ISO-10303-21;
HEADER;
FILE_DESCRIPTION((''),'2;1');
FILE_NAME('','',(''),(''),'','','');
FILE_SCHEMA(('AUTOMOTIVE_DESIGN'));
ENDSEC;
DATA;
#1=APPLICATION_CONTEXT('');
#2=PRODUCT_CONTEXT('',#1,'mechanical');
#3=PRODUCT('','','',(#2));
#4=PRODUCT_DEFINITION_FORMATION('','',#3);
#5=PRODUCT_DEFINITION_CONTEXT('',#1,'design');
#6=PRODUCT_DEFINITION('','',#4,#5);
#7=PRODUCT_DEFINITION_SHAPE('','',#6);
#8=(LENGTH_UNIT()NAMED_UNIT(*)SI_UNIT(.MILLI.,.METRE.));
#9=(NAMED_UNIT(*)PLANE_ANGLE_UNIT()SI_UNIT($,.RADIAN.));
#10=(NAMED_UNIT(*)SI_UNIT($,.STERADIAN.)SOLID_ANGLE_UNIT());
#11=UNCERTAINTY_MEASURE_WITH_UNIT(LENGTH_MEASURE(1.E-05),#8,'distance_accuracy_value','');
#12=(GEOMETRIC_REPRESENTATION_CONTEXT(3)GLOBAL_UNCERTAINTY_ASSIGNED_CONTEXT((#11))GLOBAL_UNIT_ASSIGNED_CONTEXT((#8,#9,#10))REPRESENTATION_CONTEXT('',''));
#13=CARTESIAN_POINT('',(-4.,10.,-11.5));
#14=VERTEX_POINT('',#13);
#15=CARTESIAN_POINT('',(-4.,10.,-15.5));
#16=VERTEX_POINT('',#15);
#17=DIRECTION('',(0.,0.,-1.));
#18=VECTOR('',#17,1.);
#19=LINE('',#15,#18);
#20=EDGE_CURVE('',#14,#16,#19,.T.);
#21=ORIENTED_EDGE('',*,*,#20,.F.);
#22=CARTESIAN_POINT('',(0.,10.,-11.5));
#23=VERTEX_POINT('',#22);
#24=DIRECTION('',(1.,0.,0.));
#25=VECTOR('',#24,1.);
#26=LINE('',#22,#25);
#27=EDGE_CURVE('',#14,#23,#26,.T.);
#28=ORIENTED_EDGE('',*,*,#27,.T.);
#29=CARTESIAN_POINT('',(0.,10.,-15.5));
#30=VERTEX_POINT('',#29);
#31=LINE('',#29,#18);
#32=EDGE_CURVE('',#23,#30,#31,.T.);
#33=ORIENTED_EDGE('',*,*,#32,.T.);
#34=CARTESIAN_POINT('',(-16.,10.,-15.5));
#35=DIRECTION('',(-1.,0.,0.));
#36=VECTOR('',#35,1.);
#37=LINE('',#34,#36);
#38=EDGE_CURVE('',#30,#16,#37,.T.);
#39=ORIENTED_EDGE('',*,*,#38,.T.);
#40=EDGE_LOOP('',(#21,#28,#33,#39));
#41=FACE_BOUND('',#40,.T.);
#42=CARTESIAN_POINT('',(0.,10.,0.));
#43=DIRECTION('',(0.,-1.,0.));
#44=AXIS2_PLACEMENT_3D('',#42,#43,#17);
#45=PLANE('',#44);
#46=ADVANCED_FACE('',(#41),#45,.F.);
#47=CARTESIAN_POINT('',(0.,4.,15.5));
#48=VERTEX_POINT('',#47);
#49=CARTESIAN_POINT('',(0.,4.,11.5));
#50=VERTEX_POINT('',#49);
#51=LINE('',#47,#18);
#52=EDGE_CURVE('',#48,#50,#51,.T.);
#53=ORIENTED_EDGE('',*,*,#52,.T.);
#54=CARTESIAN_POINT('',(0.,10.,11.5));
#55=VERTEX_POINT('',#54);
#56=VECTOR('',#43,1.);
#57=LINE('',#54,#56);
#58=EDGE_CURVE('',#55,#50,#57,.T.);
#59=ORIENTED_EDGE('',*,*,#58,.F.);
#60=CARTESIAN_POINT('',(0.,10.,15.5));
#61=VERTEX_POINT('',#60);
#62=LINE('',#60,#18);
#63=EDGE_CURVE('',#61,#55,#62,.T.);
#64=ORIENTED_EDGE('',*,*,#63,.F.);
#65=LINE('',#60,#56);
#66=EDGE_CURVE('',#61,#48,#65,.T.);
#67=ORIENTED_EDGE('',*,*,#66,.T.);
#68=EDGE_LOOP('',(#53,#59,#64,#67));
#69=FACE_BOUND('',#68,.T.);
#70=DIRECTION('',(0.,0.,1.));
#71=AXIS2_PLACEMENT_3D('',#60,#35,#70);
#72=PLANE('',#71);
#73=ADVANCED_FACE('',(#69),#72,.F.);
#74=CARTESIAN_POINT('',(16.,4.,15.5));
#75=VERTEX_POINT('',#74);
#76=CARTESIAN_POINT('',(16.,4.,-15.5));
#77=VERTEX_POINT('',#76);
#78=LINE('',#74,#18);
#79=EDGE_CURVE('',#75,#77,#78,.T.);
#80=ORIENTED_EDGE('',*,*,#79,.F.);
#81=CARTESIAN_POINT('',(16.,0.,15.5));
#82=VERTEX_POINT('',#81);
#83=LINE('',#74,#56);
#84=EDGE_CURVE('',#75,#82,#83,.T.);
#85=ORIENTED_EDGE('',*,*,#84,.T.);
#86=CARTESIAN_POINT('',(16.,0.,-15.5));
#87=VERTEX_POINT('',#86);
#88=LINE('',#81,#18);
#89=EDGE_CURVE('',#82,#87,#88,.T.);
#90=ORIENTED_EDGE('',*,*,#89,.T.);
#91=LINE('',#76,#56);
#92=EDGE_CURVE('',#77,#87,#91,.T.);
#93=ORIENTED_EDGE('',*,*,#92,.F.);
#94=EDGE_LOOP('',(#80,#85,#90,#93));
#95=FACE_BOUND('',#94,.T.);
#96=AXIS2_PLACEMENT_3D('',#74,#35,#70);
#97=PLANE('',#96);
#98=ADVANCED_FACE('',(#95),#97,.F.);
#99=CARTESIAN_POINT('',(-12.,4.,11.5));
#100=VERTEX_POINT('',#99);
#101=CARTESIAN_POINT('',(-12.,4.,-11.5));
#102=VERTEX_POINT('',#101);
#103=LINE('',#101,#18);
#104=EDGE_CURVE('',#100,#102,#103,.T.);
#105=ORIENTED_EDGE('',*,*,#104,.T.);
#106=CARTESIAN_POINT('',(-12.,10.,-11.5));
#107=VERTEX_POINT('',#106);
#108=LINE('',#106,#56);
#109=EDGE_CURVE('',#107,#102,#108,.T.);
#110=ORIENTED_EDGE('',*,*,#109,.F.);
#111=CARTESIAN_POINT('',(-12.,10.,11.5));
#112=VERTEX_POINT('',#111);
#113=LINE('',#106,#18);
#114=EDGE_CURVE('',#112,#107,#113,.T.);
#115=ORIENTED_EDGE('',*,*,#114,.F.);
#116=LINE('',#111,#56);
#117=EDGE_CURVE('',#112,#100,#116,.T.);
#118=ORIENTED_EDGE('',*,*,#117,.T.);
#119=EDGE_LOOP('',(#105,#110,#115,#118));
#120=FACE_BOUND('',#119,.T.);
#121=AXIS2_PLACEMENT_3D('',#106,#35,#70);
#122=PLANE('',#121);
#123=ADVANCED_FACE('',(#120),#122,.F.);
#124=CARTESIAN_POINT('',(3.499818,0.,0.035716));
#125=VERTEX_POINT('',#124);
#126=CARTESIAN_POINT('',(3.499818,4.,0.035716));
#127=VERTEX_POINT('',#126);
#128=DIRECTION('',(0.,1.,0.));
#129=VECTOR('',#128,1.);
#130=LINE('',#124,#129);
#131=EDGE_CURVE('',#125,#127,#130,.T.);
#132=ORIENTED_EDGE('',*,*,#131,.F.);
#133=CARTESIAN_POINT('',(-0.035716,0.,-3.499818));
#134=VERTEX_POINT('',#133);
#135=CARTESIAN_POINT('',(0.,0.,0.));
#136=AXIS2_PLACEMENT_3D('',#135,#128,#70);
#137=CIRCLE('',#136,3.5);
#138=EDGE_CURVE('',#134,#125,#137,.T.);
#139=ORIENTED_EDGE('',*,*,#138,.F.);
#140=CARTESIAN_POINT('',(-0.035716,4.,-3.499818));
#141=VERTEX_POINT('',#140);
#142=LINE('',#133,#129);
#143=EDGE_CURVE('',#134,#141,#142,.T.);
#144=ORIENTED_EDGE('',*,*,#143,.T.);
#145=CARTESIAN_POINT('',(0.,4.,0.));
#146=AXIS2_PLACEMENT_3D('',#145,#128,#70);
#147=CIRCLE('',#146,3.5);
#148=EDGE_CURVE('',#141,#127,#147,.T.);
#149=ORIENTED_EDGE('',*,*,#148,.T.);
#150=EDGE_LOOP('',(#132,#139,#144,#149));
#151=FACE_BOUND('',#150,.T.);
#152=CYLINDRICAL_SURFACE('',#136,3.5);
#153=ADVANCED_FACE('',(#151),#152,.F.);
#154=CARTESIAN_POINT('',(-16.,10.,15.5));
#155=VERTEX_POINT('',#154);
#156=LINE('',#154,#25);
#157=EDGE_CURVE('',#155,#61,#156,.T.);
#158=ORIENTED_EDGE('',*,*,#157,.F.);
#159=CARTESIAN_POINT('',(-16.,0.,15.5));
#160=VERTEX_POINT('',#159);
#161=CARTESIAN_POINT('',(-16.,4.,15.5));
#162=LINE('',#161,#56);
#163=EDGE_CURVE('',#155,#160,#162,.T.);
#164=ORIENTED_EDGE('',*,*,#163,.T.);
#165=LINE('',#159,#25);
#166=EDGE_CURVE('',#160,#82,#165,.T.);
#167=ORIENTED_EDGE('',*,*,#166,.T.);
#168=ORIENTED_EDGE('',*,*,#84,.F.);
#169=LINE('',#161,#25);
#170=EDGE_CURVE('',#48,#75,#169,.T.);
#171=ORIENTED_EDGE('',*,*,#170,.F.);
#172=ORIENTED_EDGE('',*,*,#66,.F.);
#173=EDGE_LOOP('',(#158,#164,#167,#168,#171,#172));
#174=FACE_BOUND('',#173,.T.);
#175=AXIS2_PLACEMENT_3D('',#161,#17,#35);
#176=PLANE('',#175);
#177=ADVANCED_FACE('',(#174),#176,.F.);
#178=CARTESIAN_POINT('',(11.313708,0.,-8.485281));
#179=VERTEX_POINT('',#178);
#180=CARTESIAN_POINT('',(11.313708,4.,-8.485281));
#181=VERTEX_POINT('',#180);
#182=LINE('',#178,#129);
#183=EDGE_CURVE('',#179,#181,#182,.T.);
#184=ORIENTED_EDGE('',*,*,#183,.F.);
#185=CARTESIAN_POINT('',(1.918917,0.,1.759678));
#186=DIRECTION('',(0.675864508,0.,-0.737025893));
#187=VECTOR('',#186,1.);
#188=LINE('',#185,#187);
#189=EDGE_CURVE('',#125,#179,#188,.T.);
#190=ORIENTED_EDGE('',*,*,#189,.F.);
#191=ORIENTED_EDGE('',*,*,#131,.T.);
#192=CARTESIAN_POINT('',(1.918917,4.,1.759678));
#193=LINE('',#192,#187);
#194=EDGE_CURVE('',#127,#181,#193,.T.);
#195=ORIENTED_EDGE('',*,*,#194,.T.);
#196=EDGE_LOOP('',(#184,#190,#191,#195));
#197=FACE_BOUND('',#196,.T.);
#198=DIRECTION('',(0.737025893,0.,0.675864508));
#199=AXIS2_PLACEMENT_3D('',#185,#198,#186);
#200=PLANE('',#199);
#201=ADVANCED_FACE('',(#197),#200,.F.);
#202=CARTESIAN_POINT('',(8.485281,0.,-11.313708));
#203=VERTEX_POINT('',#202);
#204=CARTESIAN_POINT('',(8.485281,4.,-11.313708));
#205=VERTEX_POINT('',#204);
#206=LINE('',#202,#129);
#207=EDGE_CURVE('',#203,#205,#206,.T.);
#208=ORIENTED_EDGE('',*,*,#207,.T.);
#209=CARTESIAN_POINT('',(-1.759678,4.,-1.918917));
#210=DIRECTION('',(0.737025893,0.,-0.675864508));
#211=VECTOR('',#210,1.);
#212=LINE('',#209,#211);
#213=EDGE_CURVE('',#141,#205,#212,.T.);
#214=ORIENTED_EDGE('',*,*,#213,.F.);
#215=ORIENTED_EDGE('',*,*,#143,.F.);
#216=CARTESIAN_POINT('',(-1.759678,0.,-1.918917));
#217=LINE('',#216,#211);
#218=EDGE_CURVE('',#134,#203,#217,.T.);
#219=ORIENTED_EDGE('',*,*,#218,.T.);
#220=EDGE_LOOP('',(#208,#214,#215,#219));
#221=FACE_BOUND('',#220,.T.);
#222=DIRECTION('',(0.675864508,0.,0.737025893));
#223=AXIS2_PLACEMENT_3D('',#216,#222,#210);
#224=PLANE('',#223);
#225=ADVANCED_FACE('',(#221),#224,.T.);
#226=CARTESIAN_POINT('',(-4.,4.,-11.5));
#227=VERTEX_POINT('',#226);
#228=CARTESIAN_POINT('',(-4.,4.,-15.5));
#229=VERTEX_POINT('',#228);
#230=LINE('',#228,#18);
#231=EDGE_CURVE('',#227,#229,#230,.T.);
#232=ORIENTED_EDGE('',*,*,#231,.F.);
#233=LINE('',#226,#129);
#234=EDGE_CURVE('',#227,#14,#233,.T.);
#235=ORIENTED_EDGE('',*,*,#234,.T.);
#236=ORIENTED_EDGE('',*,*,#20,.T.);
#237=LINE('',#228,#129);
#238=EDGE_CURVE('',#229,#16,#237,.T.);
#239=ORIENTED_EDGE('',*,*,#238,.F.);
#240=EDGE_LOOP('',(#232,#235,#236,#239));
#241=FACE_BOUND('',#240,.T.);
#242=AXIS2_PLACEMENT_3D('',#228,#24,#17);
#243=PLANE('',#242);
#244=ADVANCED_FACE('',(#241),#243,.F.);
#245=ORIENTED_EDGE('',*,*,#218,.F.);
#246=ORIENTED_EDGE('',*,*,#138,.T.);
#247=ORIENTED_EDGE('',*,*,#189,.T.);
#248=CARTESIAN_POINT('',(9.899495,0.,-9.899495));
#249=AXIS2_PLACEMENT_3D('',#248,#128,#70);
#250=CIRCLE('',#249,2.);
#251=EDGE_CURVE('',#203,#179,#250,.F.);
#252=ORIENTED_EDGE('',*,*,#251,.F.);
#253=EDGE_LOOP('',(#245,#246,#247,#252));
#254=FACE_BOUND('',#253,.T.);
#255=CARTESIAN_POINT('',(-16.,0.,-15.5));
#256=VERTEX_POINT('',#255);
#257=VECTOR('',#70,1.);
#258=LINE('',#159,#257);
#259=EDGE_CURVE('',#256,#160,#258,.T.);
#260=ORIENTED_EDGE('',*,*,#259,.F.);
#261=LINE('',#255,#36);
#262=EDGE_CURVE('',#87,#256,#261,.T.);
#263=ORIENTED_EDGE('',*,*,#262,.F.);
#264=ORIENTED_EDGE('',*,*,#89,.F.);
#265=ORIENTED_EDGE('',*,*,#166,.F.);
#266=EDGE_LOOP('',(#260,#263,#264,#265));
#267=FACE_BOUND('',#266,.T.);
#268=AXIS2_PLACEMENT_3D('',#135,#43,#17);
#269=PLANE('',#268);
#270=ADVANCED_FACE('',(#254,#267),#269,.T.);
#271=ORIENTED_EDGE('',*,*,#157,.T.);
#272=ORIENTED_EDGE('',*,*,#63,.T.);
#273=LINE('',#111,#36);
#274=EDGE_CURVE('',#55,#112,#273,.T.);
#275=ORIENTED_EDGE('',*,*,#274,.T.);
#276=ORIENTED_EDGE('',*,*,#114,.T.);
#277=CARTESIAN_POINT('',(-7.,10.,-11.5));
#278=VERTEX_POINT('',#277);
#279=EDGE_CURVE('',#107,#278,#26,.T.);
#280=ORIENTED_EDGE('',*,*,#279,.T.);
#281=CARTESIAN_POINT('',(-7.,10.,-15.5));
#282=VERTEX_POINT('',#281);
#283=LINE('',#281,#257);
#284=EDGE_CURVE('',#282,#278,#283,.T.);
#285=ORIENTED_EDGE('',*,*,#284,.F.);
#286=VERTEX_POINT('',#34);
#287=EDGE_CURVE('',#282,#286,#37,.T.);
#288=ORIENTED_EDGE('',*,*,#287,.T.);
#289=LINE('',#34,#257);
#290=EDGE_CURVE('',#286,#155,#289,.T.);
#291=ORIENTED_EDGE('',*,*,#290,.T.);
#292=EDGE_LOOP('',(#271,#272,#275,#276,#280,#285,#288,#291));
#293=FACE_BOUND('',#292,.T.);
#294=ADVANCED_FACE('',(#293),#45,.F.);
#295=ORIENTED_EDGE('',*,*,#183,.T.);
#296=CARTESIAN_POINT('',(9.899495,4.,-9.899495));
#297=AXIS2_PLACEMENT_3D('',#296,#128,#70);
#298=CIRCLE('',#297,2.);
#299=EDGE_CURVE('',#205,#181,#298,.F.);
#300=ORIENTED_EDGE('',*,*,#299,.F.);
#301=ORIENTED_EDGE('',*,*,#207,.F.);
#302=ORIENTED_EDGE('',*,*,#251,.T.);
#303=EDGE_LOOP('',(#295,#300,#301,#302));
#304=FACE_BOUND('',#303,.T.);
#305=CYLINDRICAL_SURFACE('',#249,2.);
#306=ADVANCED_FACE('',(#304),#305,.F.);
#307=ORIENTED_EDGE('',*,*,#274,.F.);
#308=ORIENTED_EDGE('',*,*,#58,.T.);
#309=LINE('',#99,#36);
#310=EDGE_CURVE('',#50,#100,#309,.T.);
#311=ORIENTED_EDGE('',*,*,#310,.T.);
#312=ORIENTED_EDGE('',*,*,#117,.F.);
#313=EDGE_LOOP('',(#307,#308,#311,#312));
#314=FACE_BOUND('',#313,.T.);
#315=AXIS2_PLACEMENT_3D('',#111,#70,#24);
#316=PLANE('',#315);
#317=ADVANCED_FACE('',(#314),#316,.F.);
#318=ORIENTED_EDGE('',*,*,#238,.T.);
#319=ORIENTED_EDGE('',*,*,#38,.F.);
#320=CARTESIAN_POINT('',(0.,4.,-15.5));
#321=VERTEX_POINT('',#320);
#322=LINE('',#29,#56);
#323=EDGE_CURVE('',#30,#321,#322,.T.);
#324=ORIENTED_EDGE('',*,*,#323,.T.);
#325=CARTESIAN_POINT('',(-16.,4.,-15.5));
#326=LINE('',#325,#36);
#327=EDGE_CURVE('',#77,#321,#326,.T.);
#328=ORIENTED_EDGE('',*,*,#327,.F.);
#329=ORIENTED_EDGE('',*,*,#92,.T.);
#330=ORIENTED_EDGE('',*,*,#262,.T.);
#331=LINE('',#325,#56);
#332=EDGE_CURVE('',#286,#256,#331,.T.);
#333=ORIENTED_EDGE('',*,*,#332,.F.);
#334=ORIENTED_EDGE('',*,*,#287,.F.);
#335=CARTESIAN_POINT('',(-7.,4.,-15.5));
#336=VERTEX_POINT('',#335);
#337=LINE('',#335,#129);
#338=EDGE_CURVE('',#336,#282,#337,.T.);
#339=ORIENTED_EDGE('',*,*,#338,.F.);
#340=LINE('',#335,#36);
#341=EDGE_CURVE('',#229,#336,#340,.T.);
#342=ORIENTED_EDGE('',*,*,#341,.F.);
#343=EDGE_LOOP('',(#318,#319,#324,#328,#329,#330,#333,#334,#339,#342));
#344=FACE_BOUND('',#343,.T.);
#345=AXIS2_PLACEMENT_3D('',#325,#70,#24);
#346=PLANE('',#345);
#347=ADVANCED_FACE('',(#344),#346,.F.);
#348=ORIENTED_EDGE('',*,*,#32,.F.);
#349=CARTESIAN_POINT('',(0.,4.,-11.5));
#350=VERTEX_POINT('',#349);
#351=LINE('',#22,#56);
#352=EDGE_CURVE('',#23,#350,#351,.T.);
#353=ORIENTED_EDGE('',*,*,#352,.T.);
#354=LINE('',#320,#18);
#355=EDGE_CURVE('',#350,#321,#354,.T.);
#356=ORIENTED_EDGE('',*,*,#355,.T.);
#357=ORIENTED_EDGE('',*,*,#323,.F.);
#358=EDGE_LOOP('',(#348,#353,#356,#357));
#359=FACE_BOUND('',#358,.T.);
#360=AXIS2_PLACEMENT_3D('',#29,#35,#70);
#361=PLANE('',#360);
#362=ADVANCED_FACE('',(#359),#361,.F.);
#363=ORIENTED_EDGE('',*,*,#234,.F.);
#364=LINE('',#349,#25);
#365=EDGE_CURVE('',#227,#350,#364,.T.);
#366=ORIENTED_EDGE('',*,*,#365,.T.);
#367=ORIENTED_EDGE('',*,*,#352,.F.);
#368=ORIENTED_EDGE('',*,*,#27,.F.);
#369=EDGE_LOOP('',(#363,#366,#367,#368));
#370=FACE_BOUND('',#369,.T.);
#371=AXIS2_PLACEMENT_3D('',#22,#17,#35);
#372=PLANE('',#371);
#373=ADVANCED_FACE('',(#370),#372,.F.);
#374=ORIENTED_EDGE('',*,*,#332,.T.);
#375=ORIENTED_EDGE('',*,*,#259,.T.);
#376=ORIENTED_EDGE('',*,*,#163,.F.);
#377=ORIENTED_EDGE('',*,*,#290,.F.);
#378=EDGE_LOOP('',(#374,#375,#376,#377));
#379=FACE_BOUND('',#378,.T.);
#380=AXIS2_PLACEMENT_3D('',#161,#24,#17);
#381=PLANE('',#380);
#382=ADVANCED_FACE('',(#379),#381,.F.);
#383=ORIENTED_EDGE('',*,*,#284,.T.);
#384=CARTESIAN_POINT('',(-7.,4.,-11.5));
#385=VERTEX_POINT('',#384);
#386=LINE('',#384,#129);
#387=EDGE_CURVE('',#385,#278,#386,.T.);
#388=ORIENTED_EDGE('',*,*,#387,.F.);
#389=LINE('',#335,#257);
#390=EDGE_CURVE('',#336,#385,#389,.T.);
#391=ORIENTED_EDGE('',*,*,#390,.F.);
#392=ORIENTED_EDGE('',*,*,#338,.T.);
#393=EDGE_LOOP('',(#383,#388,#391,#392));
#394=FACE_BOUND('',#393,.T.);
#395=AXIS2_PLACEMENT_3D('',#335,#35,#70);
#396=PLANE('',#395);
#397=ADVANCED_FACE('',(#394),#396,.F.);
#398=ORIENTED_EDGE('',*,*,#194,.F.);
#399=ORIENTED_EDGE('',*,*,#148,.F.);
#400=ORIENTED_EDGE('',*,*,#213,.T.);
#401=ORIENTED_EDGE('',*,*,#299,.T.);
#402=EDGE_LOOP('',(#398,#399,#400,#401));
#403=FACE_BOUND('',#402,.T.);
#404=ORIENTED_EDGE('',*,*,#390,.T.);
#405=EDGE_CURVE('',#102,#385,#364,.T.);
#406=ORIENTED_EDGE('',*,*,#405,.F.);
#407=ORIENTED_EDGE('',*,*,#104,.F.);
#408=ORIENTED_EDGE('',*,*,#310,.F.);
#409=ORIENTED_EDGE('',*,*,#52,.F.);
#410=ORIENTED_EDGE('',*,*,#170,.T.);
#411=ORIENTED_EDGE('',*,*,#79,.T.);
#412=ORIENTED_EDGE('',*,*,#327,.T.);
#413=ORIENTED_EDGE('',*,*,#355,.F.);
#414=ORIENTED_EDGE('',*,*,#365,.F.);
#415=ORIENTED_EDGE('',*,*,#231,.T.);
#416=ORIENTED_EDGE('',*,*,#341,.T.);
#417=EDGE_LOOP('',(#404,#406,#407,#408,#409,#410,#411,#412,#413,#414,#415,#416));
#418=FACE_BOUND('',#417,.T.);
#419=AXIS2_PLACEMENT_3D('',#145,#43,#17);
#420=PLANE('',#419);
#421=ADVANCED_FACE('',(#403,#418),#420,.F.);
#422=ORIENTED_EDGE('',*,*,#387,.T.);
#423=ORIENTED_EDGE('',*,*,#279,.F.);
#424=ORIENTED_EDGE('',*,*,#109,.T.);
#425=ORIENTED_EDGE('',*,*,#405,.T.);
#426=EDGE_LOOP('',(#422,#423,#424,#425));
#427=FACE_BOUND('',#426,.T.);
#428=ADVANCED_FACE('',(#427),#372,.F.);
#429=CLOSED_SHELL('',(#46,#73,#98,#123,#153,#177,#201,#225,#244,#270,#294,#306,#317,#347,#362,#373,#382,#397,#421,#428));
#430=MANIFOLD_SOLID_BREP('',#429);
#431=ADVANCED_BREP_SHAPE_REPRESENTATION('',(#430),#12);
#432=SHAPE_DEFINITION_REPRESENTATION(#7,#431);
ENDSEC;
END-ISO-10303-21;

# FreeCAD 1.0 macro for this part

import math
import FreeCAD as App
import Part
import Sketcher

V = App.Vector


def add_polygon(sketch, points):
    """Adds a closed chain of lines whose ends are joined by coincident constraints."""
    first, n = sketch.GeometryCount, len(points)
    for a, b in zip(points, points[1:] + points[:1]):
        sketch.addGeometry(Part.LineSegment(App.Vector(*a, 0), App.Vector(*b, 0)), False)
    for i in range(n):
        sketch.addConstraint(Sketcher.Constraint("Coincident", first + i, 2, first + (i + 1) % n, 1))

doc = App.newDocument("Part")
body = doc.addObject("PartDesign::Body", "Body")

# Sketch on XZ plane
sketch1 = body.newObject("Sketcher::SketchObject", "Sketch")
sketch1.AttachmentSupport = (doc.getObject("XZ_Plane"), [""])
sketch1.MapMode = "FlatFace"
add_polygon(sketch1, [(-16, -16), (-16, 16), (16, 16), (16, -16)])  # lines 0-3
sketch1.addConstraint(Sketcher.Constraint("Vertical", 0))
sketch1.addConstraint(Sketcher.Constraint("Horizontal", 1))
sketch1.addConstraint(Sketcher.Constraint("Vertical", 2))
sketch1.addConstraint(Sketcher.Constraint("Horizontal", 3))
sketch1.addConstraint(Sketcher.Constraint("Symmetric", 0, 2, 2, 2, -1, 1))
sketch1.addConstraint(Sketcher.Constraint("DistanceX", 1, 1, 1, 2, 32.0))
sketch1.addConstraint(Sketcher.Constraint("DistanceY", 0, 1, 0, 2, 31.0))
pad1 = body.newObject("PartDesign::Pad", "Pad")
pad1.Profile = sketch1
pad1.Length = 4
pad1.Reversed = True

# Sketch on XZ plane
sketch2 = body.newObject("Sketcher::SketchObject", "Sketch001")
sketch2.AttachmentSupport = (doc.getObject("XZ_Plane"), [""])
sketch2.MapMode = "FlatFace"
sketch2.AttachmentOffset = App.Placement(V(0, 0, -4), App.Rotation())
add_polygon(sketch2, [(-16, -15.5), (-16, 15.5), (0, 15.5), (0, 11.5), (-12, 11.5), (-12, -11.5), (0, -11.5), (0, -15.5)])  # lines 0-7
sketch2.addConstraint(Sketcher.Constraint("Vertical", 0))
sketch2.addConstraint(Sketcher.Constraint("Horizontal", 1))
sketch2.addConstraint(Sketcher.Constraint("Vertical", 2))
sketch2.addConstraint(Sketcher.Constraint("Horizontal", 3))
sketch2.addConstraint(Sketcher.Constraint("Vertical", 4))
sketch2.addConstraint(Sketcher.Constraint("Horizontal", 5))
sketch2.addConstraint(Sketcher.Constraint("Vertical", 6))
sketch2.addConstraint(Sketcher.Constraint("Horizontal", 7))
sketch2.addConstraint(Sketcher.Constraint("Symmetric", 2, 2, 5, 2, -1, 1))
sketch2.addConstraint(Sketcher.Constraint("Symmetric", 1, 2, 6, 2, -1))
sketch2.addConstraint(Sketcher.Constraint("DistanceX", 1, 1, 1, 2, 16.0))
sketch2.addConstraint(Sketcher.Constraint("DistanceX", 3, 2, 3, 1, 12.0))
sketch2.addConstraint(Sketcher.Constraint("DistanceY", 0, 1, 0, 2, 31.0))
sketch2.addConstraint(Sketcher.Constraint("DistanceY", 2, 2, 2, 1, 4.0))
pad2 = body.newObject("PartDesign::Pad", "Pad001")
pad2.Profile = sketch2
pad2.Length = 6
pad2.Reversed = True

# Sketch on XZ plane
sketch3 = body.newObject("Sketcher::SketchObject", "Sketch002")
sketch3.AttachmentSupport = (doc.getObject("XZ_Plane"), [""])
sketch3.MapMode = "FlatFace"
sketch3.AttachmentOffset = App.Placement(V(0, 0, -10), App.Rotation())
add_polygon(sketch3, [(-7, -15.5), (-7, -11.5), (-4, -11.5), (-4, -15.5)])  # lines 0-3
sketch3.addConstraint(Sketcher.Constraint("Vertical", 0))
sketch3.addConstraint(Sketcher.Constraint("Horizontal", 1))
sketch3.addConstraint(Sketcher.Constraint("Vertical", 2))
sketch3.addConstraint(Sketcher.Constraint("Horizontal", 3))
sketch3.addConstraint(Sketcher.Constraint("DistanceX", 1, 1, 1, 2, 3.0))
sketch3.addConstraint(Sketcher.Constraint("DistanceY", 0, 1, 0, 2, 4.0))
sketch3.addConstraint(Sketcher.Constraint("DistanceX", 0, 2, -1, 1, 7.0))
sketch3.addConstraint(Sketcher.Constraint("DistanceY", 0, 2, -1, 1, 11.5))
pocket1 = body.newObject("PartDesign::Pocket", "Pocket")
pocket1.Profile = sketch3
pocket1.Length = 6
pocket1.Reversed = True

# Sketch on XZ plane
sketch4 = body.newObject("Sketcher::SketchObject", "Sketch003")
sketch4.AttachmentSupport = (doc.getObject("XZ_Plane"), [""])
sketch4.MapMode = "FlatFace"
sketch4.AttachmentOffset = App.Placement(V(0, 0, -4), App.Rotation())
sketch4.addGeometry(Part.LineSegment(V(8.5, -11.3, 0), V(0, -3.5, 0)), False)
sketch4.addGeometry(Part.ArcOfCircle(Part.Circle(V(0, 0, 0), V(0, 0, 1), 3.5), math.radians(1), math.radians(269)), False)
sketch4.addGeometry(Part.LineSegment(V(3.5, 0, 0), V(11.3, -8.5, 0)), False)
sketch4.addGeometry(Part.ArcOfCircle(Part.Circle(V(9.9, -9.9, 0), V(0, 0, 1), 2), math.radians(-45), math.radians(45)), False)
sketch4.addGeometry(Part.ArcOfCircle(Part.Circle(V(9.9, -9.9, 0), V(0, 0, 1), 2), math.radians(-135), math.radians(-45)), False)
sketch4.addConstraint(Sketcher.Constraint("Coincident", 0, 2, 1, 2))
sketch4.addConstraint(Sketcher.Constraint("Coincident", 1, 1, 2, 1))
sketch4.addConstraint(Sketcher.Constraint("Coincident", 2, 2, 3, 2))
sketch4.addConstraint(Sketcher.Constraint("Tangent", 3, 1, 4, 2))
sketch4.addConstraint(Sketcher.Constraint("Coincident", 4, 1, 0, 1))
sketch4.addConstraint(Sketcher.Constraint("Coincident", 1, 3, -1, 1))
sketch4.addConstraint(Sketcher.Constraint("Equal", 3, 4))
sketch4.addConstraint(Sketcher.Constraint("Horizontal", 3, 1, 4, 1))
sketch4.addConstraint(Sketcher.Constraint("Vertical", 2, 2, 3, 1))
sketch4.addConstraint(Sketcher.Constraint("Equal", 0, 2))
sketch4.addConstraint(Sketcher.Constraint("Radius", 3, 2.0))
sketch4.addConstraint(Sketcher.Constraint("Radius", 1, 3.5))
sketch4.addConstraint(Sketcher.Constraint("DistanceX", -1, 1, 2, 2, 11.313708))
sketch4.addConstraint(Sketcher.Constraint("DistanceY", 2, 2, -1, 1, 8.485281))
sketch4.addConstraint(Sketcher.Constraint("DistanceY", 3, 1, -1, 1, 11.313708))
sketch4.addConstraint(Sketcher.Constraint("DistanceX", 0, 2, 3, 3, 9.935211))
pocket2 = body.newObject("PartDesign::Pocket", "Pocket001")
pocket2.Profile = sketch4
pocket2.Length = 4
pocket2.Reversed = True

doc.recompute()
